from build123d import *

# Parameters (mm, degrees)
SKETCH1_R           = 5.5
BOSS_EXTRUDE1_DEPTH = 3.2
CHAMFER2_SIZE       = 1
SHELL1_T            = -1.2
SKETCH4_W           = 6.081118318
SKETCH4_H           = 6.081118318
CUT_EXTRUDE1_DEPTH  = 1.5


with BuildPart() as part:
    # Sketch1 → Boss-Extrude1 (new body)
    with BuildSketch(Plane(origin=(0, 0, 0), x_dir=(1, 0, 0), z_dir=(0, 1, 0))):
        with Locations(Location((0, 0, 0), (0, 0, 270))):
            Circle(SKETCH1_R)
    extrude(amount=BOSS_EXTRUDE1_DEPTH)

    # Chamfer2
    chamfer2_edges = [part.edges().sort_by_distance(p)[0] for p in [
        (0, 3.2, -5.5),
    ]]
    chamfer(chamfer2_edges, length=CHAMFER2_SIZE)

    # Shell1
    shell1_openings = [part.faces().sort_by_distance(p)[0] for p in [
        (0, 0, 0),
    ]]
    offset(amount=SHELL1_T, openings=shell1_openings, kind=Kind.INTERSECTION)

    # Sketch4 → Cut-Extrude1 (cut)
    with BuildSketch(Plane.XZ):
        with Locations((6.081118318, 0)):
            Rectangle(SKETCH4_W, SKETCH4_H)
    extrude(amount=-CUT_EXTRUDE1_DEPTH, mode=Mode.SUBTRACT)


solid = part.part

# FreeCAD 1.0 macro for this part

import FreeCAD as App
import Part
import Sketcher
Q = App.Units.Quantity


def edges_at(feature, points):
    """Names of the edges that pass closest to the given points."""
    edges = feature.Shape.Edges
    near = lambda p: min(range(len(edges)), key=lambda i: edges[i].distToShape(Part.Vertex(*p))[0])
    return sorted({f"Edge{near(p) + 1}" for p in points})


def faces_at(feature, points):
    """Names of the faces that lie closest to the given points."""
    faces = feature.Shape.Faces
    near = lambda p: min(range(len(faces)), key=lambda i: faces[i].distToShape(Part.Vertex(*p))[0])
    return sorted({f"Face{near(p) + 1}" for p in points})


def add_polygon(sketch, points):
    """Adds a closed chain of lines whose ends are joined by coincident constraints."""
    first, n = sketch.GeometryCount, len(points)
    for a, b in zip(points, points[1:] + points[:1]):
        sketch.addGeometry(Part.LineSegment(App.Vector(*a, 0), App.Vector(*b, 0)), False)
    for i in range(n):
        sketch.addConstraint(Sketcher.Constraint("Coincident", first + i, 2, first + (i + 1) % n, 1))

doc = App.newDocument("Part")
body = doc.addObject("PartDesign::Body", "Body")

# Sketch on XZ plane
sketch1 = body.newObject("Sketcher::SketchObject", "Sketch")
sketch1.AttachmentSupport = (doc.getObject("XZ_Plane"), [""])
sketch1.MapMode = "FlatFace"
sketch1.addGeometry(Part.Circle(App.Vector(0, 0, 0), App.Vector(0, 0, 1), 6), False)
sketch1.addConstraint([
    Sketcher.Constraint("Coincident", 0, 3, -1, 1),
    Sketcher.Constraint("Diameter", 0, Q("11 mm")),
])
pad1 = body.newObject("PartDesign::Pad", "Pad")
pad1.Profile = sketch1
pad1.Length = 3.2
pad1.Reversed = True
doc.recompute()

chamfer = body.newObject("PartDesign::Chamfer", "Chamfer")
chamfer.Base = (pad1, edges_at(pad1, [(0, 3.2, -5.5)]))
chamfer.Size = 1
doc.recompute()

thickness = body.newObject("PartDesign::Thickness", "Thickness")
thickness.Base = (chamfer, faces_at(chamfer, [(0, 0, 0)]))
thickness.Value = 1.2
thickness.Reversed = True
thickness.Join = "Intersection"

# Sketch on XZ plane
sketch2 = body.newObject("Sketcher::SketchObject", "Sketch001")
sketch2.AttachmentSupport = (doc.getObject("XZ_Plane"), [""])
sketch2.MapMode = "FlatFace"
add_polygon(sketch2, [(3, 3), (3, -3), (9, -3), (9, 3)])  # lines 0-3
sketch2.addConstraint([
    Sketcher.Constraint("Vertical", 0),
    Sketcher.Constraint("Horizontal", 1),
    Sketcher.Constraint("Vertical", 2),
    Sketcher.Constraint("Horizontal", 3),
    Sketcher.Constraint("Equal", 3, 0),
    Sketcher.Constraint("DistanceX", 1, 1, 1, 2, Q("6.081118 mm")),
    Sketcher.Constraint("DistanceX", -1, 1, 0, 2, Q("3.040559 mm")),
    Sketcher.Constraint("DistanceY", 0, 2, -1, 1, Q("3.040559 mm")),
])
pocket1 = body.newObject("PartDesign::Pocket", "Pocket")
pocket1.Profile = sketch2
pocket1.Length = 1.5

doc.recompute()
